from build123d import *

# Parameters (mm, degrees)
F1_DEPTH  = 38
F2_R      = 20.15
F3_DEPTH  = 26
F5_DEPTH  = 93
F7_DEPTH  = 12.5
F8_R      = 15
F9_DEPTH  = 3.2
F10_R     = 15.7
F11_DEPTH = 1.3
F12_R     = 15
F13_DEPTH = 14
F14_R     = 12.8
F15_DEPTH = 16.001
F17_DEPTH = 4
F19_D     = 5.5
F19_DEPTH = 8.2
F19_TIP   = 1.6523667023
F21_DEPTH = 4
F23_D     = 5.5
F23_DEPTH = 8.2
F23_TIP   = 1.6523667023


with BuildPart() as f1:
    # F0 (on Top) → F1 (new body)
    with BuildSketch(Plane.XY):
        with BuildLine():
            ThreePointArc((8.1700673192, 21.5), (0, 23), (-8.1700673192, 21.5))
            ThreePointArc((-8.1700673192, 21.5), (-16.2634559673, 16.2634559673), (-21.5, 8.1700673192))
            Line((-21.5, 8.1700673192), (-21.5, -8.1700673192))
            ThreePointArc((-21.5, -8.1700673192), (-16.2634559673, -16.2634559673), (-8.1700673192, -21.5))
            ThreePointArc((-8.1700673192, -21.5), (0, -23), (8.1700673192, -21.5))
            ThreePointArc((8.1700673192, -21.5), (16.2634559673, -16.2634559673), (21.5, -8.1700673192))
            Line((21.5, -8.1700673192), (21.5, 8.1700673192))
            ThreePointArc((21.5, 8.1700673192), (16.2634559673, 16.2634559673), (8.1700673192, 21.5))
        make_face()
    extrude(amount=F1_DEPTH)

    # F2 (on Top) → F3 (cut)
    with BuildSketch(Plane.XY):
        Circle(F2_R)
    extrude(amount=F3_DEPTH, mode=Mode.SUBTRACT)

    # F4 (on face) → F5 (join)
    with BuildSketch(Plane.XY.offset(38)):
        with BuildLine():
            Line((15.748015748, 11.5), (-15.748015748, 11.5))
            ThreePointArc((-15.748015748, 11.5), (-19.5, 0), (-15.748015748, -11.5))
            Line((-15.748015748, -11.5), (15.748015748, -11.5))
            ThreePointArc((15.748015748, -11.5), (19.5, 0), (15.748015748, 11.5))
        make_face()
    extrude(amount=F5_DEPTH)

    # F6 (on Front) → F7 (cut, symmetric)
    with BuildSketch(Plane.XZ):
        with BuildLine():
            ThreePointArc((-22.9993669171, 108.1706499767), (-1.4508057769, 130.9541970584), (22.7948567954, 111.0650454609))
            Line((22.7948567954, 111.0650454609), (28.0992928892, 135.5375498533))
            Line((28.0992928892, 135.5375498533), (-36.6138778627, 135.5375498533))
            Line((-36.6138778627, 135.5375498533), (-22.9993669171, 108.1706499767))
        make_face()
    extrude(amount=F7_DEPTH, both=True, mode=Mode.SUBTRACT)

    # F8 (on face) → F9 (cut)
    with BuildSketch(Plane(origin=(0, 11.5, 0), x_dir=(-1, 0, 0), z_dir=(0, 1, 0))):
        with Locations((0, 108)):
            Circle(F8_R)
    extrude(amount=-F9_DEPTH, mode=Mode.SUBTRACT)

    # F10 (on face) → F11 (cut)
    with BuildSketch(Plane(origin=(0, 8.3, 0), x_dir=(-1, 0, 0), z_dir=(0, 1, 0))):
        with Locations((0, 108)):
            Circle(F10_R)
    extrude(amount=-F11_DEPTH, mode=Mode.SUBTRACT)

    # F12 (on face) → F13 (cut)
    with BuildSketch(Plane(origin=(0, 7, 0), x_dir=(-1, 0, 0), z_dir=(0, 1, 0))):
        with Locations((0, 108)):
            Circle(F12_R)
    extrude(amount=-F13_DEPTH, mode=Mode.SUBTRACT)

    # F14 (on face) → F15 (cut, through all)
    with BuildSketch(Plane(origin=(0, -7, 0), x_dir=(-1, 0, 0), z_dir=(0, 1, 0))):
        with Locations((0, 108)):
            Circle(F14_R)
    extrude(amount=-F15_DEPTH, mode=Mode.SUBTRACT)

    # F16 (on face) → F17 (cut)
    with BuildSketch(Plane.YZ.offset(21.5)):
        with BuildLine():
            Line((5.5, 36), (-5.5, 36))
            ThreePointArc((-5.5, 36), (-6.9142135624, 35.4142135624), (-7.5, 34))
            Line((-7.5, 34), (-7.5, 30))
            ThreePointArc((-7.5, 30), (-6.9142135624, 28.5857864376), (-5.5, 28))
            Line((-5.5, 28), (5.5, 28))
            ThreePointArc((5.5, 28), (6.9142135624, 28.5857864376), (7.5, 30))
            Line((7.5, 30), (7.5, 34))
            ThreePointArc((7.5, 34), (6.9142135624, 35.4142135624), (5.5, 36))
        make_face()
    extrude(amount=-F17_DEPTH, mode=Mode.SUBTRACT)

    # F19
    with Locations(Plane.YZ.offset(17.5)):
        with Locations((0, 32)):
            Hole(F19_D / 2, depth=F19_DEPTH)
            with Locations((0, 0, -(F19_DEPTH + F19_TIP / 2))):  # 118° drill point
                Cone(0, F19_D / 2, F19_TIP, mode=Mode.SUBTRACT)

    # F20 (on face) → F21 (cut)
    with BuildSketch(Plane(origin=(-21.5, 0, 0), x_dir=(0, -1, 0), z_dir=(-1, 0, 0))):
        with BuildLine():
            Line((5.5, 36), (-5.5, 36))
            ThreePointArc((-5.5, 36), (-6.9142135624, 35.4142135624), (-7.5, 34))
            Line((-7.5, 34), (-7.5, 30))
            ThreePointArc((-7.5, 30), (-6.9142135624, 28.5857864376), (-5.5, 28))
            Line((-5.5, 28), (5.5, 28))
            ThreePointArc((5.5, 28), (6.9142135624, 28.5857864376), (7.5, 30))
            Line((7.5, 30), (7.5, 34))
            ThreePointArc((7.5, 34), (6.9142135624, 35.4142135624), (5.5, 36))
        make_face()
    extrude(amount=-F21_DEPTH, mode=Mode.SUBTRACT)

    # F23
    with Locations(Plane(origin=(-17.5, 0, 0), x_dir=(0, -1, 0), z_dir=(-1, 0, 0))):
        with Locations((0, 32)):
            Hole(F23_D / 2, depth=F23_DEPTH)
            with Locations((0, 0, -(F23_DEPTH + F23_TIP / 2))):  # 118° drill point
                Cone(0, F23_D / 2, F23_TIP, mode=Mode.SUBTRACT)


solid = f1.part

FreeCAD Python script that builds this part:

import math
import FreeCAD as App
import Part
import Sketcher
from FreeCAD import Vector
Q = App.Units.Quantity

doc = App.newDocument("Part")
body = doc.addObject("PartDesign::Body", "Body")

sketch1 = body.newObject("Sketcher::SketchObject", "Sketch")
sketch1.AttachmentSupport = (doc.getObject("XY_Plane"), [""])
sketch1.MapMode = "FlatFace"
sketch1.addGeometry(Part.LineSegment(Vector(-22, 8, 0), Vector(-22, -8, 0)), False)
sketch1.addGeometry(Part.ArcOfCircle(Part.Circle(Vector(0, 0, 0), Vector(0, 0, 1), 23), math.radians(-159), math.radians(-69)), False)
sketch1.addGeometry(Part.ArcOfCircle(Part.Circle(Vector(0, 0, 0), Vector(0, 0, 1), 23), math.radians(-69), math.radians(-21)), False)
sketch1.addGeometry(Part.LineSegment(Vector(22, -8, 0), Vector(22, 8, 0)), False)
sketch1.addGeometry(Part.ArcOfCircle(Part.Circle(Vector(0, 0, 0), Vector(0, 0, 1), 23), math.radians(21), math.radians(159)), False)
sketch1.addConstraint(Sketcher.Constraint("Coincident", 0, 2, 1, 1))
sketch1.addConstraint(Sketcher.Constraint("Tangent", 1, 2, 2, 1))
sketch1.addConstraint(Sketcher.Constraint("Coincident", 2, 2, 3, 1))
sketch1.addConstraint(Sketcher.Constraint("Coincident", 3, 2, 4, 1))
sketch1.addConstraint(Sketcher.Constraint("Coincident", 4, 2, 0, 1))
sketch1.addConstraint(Sketcher.Constraint("Vertical", 0))
sketch1.addConstraint(Sketcher.Constraint("Vertical", 3))
sketch1.addConstraint(Sketcher.Constraint("Coincident", 1, 3, -1, 1))
sketch1.addConstraint(Sketcher.Constraint("Coincident", 4, 3, -1, 1))
sketch1.addConstraint(Sketcher.Constraint("Equal", 1, 2))
sketch1.addConstraint(Sketcher.Constraint("Equal", 2, 4))
sketch1.addConstraint(Sketcher.Constraint("Horizontal", 0, 2, 2, 2))
sketch1.addConstraint(Sketcher.Constraint("Radius", 1, Q("23 mm")))
sketch1.addConstraint(Sketcher.Constraint("DistanceX", 0, 2, 2, 2, Q("43 mm")))
sketch1.addConstraint(Sketcher.Constraint("DistanceY", 1, 2, -1, 1, Q("21.5 mm")))
pad1 = body.newObject("PartDesign::Pad", "Pad")
pad1.Profile = sketch1
pad1.Length = 38

sketch2 = body.newObject("Sketcher::SketchObject", "Sketch001")
sketch2.AttachmentSupport = (doc.getObject("XY_Plane"), [""])
sketch2.MapMode = "FlatFace"
sketch2.addGeometry(Part.Circle(Vector(0, 0, 0), Vector(0, 0, 1), 20), False)
sketch2.addConstraint(Sketcher.Constraint("Coincident", 0, 3, -1, 1))
sketch2.addConstraint(Sketcher.Constraint("Diameter", 0, Q("40.3 mm")))
pocket1 = body.newObject("PartDesign::Pocket", "Pocket")
pocket1.Profile = sketch2
pocket1.Length = 26
pocket1.Reversed = True

sketch3 = body.newObject("Sketcher::SketchObject", "Sketch002")
sketch3.AttachmentSupport = (doc.getObject("XY_Plane"), [""])
sketch3.MapMode = "FlatFace"
sketch3.AttachmentOffset = App.Placement(Vector(0, 0, 38), App.Rotation())
sketch3.addGeometry(Part.LineSegment(Vector(16, 12, 0), Vector(-16, 12, 0)), False)
sketch3.addGeometry(Part.ArcOfCircle(Part.Circle(Vector(0, 0, 0), Vector(0, 0, 1), 20), math.radians(144), math.radians(216)), False)
sketch3.addGeometry(Part.LineSegment(Vector(-16, -12, 0), Vector(16, -12, 0)), False)
sketch3.addGeometry(Part.ArcOfCircle(Part.Circle(Vector(0, 0, 0), Vector(0, 0, 1), 20), math.radians(-36), math.radians(36)), False)
sketch3.addConstraint(Sketcher.Constraint("Coincident", 0, 2, 1, 1))
sketch3.addConstraint(Sketcher.Constraint("Coincident", 1, 2, 2, 1))
sketch3.addConstraint(Sketcher.Constraint("Coincident", 2, 2, 3, 1))
sketch3.addConstraint(Sketcher.Constraint("Coincident", 3, 2, 0, 1))
sketch3.addConstraint(Sketcher.Constraint("Horizontal", 0))
sketch3.addConstraint(Sketcher.Constraint("Horizontal", 2))
sketch3.addConstraint(Sketcher.Constraint("Coincident", 1, 3, -1, 1))
sketch3.addConstraint(Sketcher.Constraint("Coincident", 3, 3, -1, 1))
sketch3.addConstraint(Sketcher.Constraint("Equal", 1, 3))
sketch3.addConstraint(Sketcher.Constraint("Vertical", 0, 2, 1, 2))
sketch3.addConstraint(Sketcher.Constraint("Radius", 1, Q("19.5 mm")))
sketch3.addConstraint(Sketcher.Constraint("DistanceY", 1, 2, 0, 2, Q("23 mm")))
pad2 = body.newObject("PartDesign::Pad", "Pad001")
pad2.Profile = sketch3
pad2.Length = 93

sketch4 = body.newObject("Sketcher::SketchObject", "Sketch003")
sketch4.AttachmentSupport = (doc.getObject("XZ_Plane"), [""])
sketch4.MapMode = "FlatFace"
sketch4.addGeometry(Part.ArcOfCircle(Part.Circle(Vector(0, 108, 0), Vector(0, 0, 1), 23), math.radians(8), math.radians(180)), False)
sketch4.addGeometry(Part.LineSegment(Vector(23, 111, 0), Vector(28, 136, 0)), False)
sketch4.addGeometry(Part.LineSegment(Vector(28, 136, 0), Vector(-37, 136, 0)), False)
sketch4.addGeometry(Part.LineSegment(Vector(-37, 136, 0), Vector(-23, 108, 0)), False)
sketch4.addConstraint(Sketcher.Constraint("Coincident", 0, 1, 1, 1))
sketch4.addConstraint(Sketcher.Constraint("Coincident", 1, 2, 2, 1))
sketch4.addConstraint(Sketcher.Constraint("Coincident", 2, 2, 3, 1))
sketch4.addConstraint(Sketcher.Constraint("Coincident", 3, 2, 0, 2))
sketch4.addConstraint(Sketcher.Constraint("Horizontal", 2))
sketch4.addConstraint(Sketcher.Constraint("PointOnObject", 0, 3, -2))
sketch4.addConstraint(Sketcher.Constraint("Radius", 0, Q("23 mm")))
sketch4.addConstraint(Sketcher.Constraint("DistanceY", -1, 1, 0, 3, Q("108 mm")))
sketch4.addConstraint(Sketcher.Constraint("DistanceX", 2, 2, 2, 1, Q("64.713171 mm")))
sketch4.addConstraint(Sketcher.Constraint("DistanceY", 3, 2, 2, 2, Q("27.3669 mm")))
sketch4.addConstraint(Sketcher.Constraint("DistanceY", -1, 1, 1, 2, Q("135.53755 mm")))
sketch4.addConstraint(Sketcher.Constraint("DistanceX", 2, 2, 3, 2, Q("13.614511 mm")))
sketch4.addConstraint(Sketcher.Constraint("Distance", 1, Q("25.040777 mm")))
pocket2 = body.newObject("PartDesign::Pocket", "Pocket001")
pocket2.Profile = sketch4
pocket2.Length = 25
pocket2.Midplane = True

sketch5 = body.newObject("Sketcher::SketchObject", "Sketch004")
sketch5.AttachmentSupport = (doc.getObject("XZ_Plane"), [""])
sketch5.MapMode = "FlatFace"
sketch5.AttachmentOffset = App.Placement(Vector(0, 0, -11.5), App.Rotation())
sketch5.addGeometry(Part.Circle(Vector(0, 108, 0), Vector(0, 0, 1), 15), False)
sketch5.addConstraint(Sketcher.Constraint("PointOnObject", 0, 3, -2))
sketch5.addConstraint(Sketcher.Constraint("Diameter", 0, Q("30 mm")))
sketch5.addConstraint(Sketcher.Constraint("DistanceY", -1, 1, 0, 3, Q("108 mm")))
pocket3 = body.newObject("PartDesign::Pocket", "Pocket002")
pocket3.Profile = sketch5
pocket3.Length = 3.2
pocket3.Reversed = True

sketch6 = body.newObject("Sketcher::SketchObject", "Sketch005")
sketch6.AttachmentSupport = (doc.getObject("XZ_Plane"), [""])
sketch6.MapMode = "FlatFace"
sketch6.AttachmentOffset = App.Placement(Vector(0, 0, -8.3), App.Rotation())
sketch6.addGeometry(Part.Circle(Vector(0, 108, 0), Vector(0, 0, 1), 16), False)
sketch6.addConstraint(Sketcher.Constraint("PointOnObject", 0, 3, -2))
sketch6.addConstraint(Sketcher.Constraint("Diameter", 0, Q("31.4 mm")))
sketch6.addConstraint(Sketcher.Constraint("DistanceY", -1, 1, 0, 3, Q("108 mm")))
pocket4 = body.newObject("PartDesign::Pocket", "Pocket003")
pocket4.Profile = sketch6
pocket4.Length = 1.3
pocket4.Reversed = True

sketch7 = body.newObject("Sketcher::SketchObject", "Sketch006")
sketch7.AttachmentSupport = (doc.getObject("XZ_Plane"), [""])
sketch7.MapMode = "FlatFace"
sketch7.AttachmentOffset = App.Placement(Vector(0, 0, -7), App.Rotation())
sketch7.addGeometry(Part.Circle(Vector(0, 108, 0), Vector(0, 0, 1), 15), False)
sketch7.addConstraint(Sketcher.Constraint("PointOnObject", 0, 3, -2))
sketch7.addConstraint(Sketcher.Constraint("Diameter", 0, Q("30 mm")))
sketch7.addConstraint(Sketcher.Constraint("DistanceY", -1, 1, 0, 3, Q("108 mm")))
pocket5 = body.newObject("PartDesign::Pocket", "Pocket004")
pocket5.Profile = sketch7
pocket5.Length = 14
pocket5.Reversed = True

sketch8 = body.newObject("Sketcher::SketchObject", "Sketch007")
sketch8.AttachmentSupport = (doc.getObject("XZ_Plane"), [""])
sketch8.MapMode = "FlatFace"
sketch8.AttachmentOffset = App.Placement(Vector(0, 0, 7), App.Rotation())
sketch8.addGeometry(Part.Circle(Vector(0, 108, 0), Vector(0, 0, 1), 13), False)
sketch8.addConstraint(Sketcher.Constraint("PointOnObject", 0, 3, -2))
sketch8.addConstraint(Sketcher.Constraint("Diameter", 0, Q("25.6 mm")))
sketch8.addConstraint(Sketcher.Constraint("DistanceY", -1, 1, 0, 3, Q("108 mm")))
pocket6 = body.newObject("PartDesign::Pocket", "Pocket005")
pocket6.Profile = sketch8
pocket6.Type = "ThroughAll"
pocket6.Reversed = True

sketch9 = body.newObject("Sketcher::SketchObject", "Sketch008")
sketch9.AttachmentSupport = (doc.getObject("YZ_Plane"), [""])
sketch9.MapMode = "FlatFace"
sketch9.AttachmentOffset = App.Placement(Vector(0, 0, 21.5), App.Rotation())
sketch9.addGeometry(Part.LineSegment(Vector(5.5, 36, 0), Vector(-5.5, 36, 0)), False)
sketch9.addGeometry(Part.ArcOfCircle(Part.Circle(Vector(-5.5, 34, 0), Vector(0, 0, 1), 2), math.radians(90), math.radians(180)), False)
sketch9.addGeometry(Part.LineSegment(Vector(-7.5, 34, 0), Vector(-7.5, 30, 0)), False)
sketch9.addGeometry(Part.ArcOfCircle(Part.Circle(Vector(-5.5, 30, 0), Vector(0, 0, 1), 2), math.radians(180), math.radians(270)), False)
sketch9.addGeometry(Part.LineSegment(Vector(-5.5, 28, 0), Vector(5.5, 28, 0)), False)
sketch9.addGeometry(Part.ArcOfCircle(Part.Circle(Vector(5.5, 30, 0), Vector(0, 0, 1), 2), math.radians(-90), math.radians(0)), False)
sketch9.addGeometry(Part.LineSegment(Vector(7.5, 30, 0), Vector(7.5, 34, 0)), False)
sketch9.addGeometry(Part.ArcOfCircle(Part.Circle(Vector(5.5, 34, 0), Vector(0, 0, 1), 2), math.radians(0), math.radians(90)), False)
sketch9.addConstraint(Sketcher.Constraint("Tangent", 0, 2, 1, 1))
sketch9.addConstraint(Sketcher.Constraint("Tangent", 1, 2, 2, 1))
sketch9.addConstraint(Sketcher.Constraint("Tangent", 2, 2, 3, 1))
sketch9.addConstraint(Sketcher.Constraint("Tangent", 3, 2, 4, 1))
sketch9.addConstraint(Sketcher.Constraint("Tangent", 4, 2, 5, 1))
sketch9.addConstraint(Sketcher.Constraint("Tangent", 5, 2, 6, 1))
sketch9.addConstraint(Sketcher.Constraint("Tangent", 6, 2, 7, 1))
sketch9.addConstraint(Sketcher.Constraint("Tangent", 7, 2, 0, 1))
sketch9.addConstraint(Sketcher.Constraint("Horizontal", 0))
sketch9.addConstraint(Sketcher.Constraint("Vertical", 2))
sketch9.addConstraint(Sketcher.Constraint("Horizontal", 4))
sketch9.addConstraint(Sketcher.Constraint("Vertical", 6))
sketch9.addConstraint(Sketcher.Constraint("Equal", 1, 3))
sketch9.addConstraint(Sketcher.Constraint("Equal", 3, 5))
sketch9.addConstraint(Sketcher.Constraint("Equal", 5, 7))
sketch9.addConstraint(Sketcher.Constraint("Radius", 1, Q("2 mm")))
sketch9.addConstraint(Sketcher.Constraint("DistanceX", 0, 2, 0, 1, Q("11 mm")))
sketch9.addConstraint(Sketcher.Constraint("DistanceY", 2, 2, 2, 1, Q("4 mm")))
sketch9.addConstraint(Sketcher.Constraint("DistanceY", -1, 1, 1, 3, Q("34 mm")))
sketch9.addConstraint(Sketcher.Constraint("DistanceX", 1, 3, -1, 1, Q("5.5 mm")))
pocket7 = body.newObject("PartDesign::Pocket", "Pocket006")
pocket7.Profile = sketch9
pocket7.Length = 4

sketch10 = body.newObject("Sketcher::SketchObject", "Sketch009")
sketch10.AttachmentSupport = (doc.getObject("YZ_Plane"), [""])
sketch10.MapMode = "FlatFace"
sketch10.AttachmentOffset = App.Placement(Vector(0, 0, 17.5), App.Rotation())
sketch10.addGeometry(Part.Circle(Vector(0, 32, 0), Vector(0, 0, 1), 2.8), False)
sketch10.addConstraint(Sketcher.Constraint("PointOnObject", 0, 3, -2))
sketch10.addConstraint(Sketcher.Constraint("Diameter", 0, Q("5.5 mm")))
sketch10.addConstraint(Sketcher.Constraint("DistanceY", -1, 1, 0, 3, Q("32 mm")))
doc.recompute()
hole = body.newObject("PartDesign::Hole", "Hole")
hole.Profile = sketch10
hole.ThreadType = "None"
hole.Diameter = 5.5
hole.DepthType = "Dimension"
hole.Depth = 8.2
hole.DrillPoint = "Angled"
hole.DrillPointAngle = 118

sketch11 = body.newObject("Sketcher::SketchObject", "Sketch010")
sketch11.AttachmentSupport = (doc.getObject("YZ_Plane"), [""])
sketch11.MapMode = "FlatFace"
sketch11.AttachmentOffset = App.Placement(Vector(0, 0, -21.5), App.Rotation())
sketch11.addGeometry(Part.LineSegment(Vector(-5.5, 36, 0), Vector(5.5, 36, 0)), False)
sketch11.addGeometry(Part.ArcOfCircle(Part.Circle(Vector(5.5, 34, 0), Vector(0, 0, 1), 2), math.radians(0), math.radians(90)), False)
sketch11.addGeometry(Part.LineSegment(Vector(7.5, 34, 0), Vector(7.5, 30, 0)), False)
sketch11.addGeometry(Part.ArcOfCircle(Part.Circle(Vector(5.5, 30, 0), Vector(0, 0, 1), 2), math.radians(-90), math.radians(0)), False)
sketch11.addGeometry(Part.LineSegment(Vector(5.5, 28, 0), Vector(-5.5, 28, 0)), False)
sketch11.addGeometry(Part.ArcOfCircle(Part.Circle(Vector(-5.5, 30, 0), Vector(0, 0, 1), 2), math.radians(180), math.radians(270)), False)
sketch11.addGeometry(Part.LineSegment(Vector(-7.5, 30, 0), Vector(-7.5, 34, 0)), False)
sketch11.addGeometry(Part.ArcOfCircle(Part.Circle(Vector(-5.5, 34, 0), Vector(0, 0, 1), 2), math.radians(90), math.radians(180)), False)
sketch11.addConstraint(Sketcher.Constraint("Tangent", 0, 2, 1, 2))
sketch11.addConstraint(Sketcher.Constraint("Tangent", 1, 1, 2, 1))
sketch11.addConstraint(Sketcher.Constraint("Tangent", 2, 2, 3, 2))
sketch11.addConstraint(Sketcher.Constraint("Tangent", 3, 1, 4, 1))
sketch11.addConstraint(Sketcher.Constraint("Tangent", 4, 2, 5, 2))
sketch11.addConstraint(Sketcher.Constraint("Tangent", 5, 1, 6, 1))
sketch11.addConstraint(Sketcher.Constraint("Tangent", 6, 2, 7, 2))
sketch11.addConstraint(Sketcher.Constraint("Tangent", 7, 1, 0, 1))
sketch11.addConstraint(Sketcher.Constraint("Horizontal", 0))
sketch11.addConstraint(Sketcher.Constraint("Vertical", 2))
sketch11.addConstraint(Sketcher.Constraint("Horizontal", 4))
sketch11.addConstraint(Sketcher.Constraint("Vertical", 6))
sketch11.addConstraint(Sketcher.Constraint("Equal", 1, 3))
sketch11.addConstraint(Sketcher.Constraint("Equal", 3, 5))
sketch11.addConstraint(Sketcher.Constraint("Equal", 5, 7))
sketch11.addConstraint(Sketcher.Constraint("Radius", 1, Q("2 mm")))
sketch11.addConstraint(Sketcher.Constraint("DistanceX", 0, 1, 0, 2, Q("11 mm")))
sketch11.addConstraint(Sketcher.Constraint("DistanceY", 2, 2, 2, 1, Q("4 mm")))
sketch11.addConstraint(Sketcher.Constraint("DistanceY", -1, 1, 1, 3, Q("34 mm")))
sketch11.addConstraint(Sketcher.Constraint("DistanceX", -1, 1, 1, 3, Q("5.5 mm")))
pocket8 = body.newObject("PartDesign::Pocket", "Pocket007")
pocket8.Profile = sketch11
pocket8.Length = 4
pocket8.Reversed = True

sketch12 = body.newObject("Sketcher::SketchObject", "Sketch011")
sketch12.AttachmentSupport = (doc.getObject("YZ_Plane"), [""])
sketch12.MapMode = "FlatFace"
sketch12.AttachmentOffset = App.Placement(Vector(0, 0, -17.5), App.Rotation())
sketch12.addGeometry(Part.Circle(Vector(0, 32, 0), Vector(0, 0, 1), 2.8), False)
sketch12.addConstraint(Sketcher.Constraint("PointOnObject", 0, 3, -2))
sketch12.addConstraint(Sketcher.Constraint("Diameter", 0, Q("5.5 mm")))
sketch12.addConstraint(Sketcher.Constraint("DistanceY", -1, 1, 0, 3, Q("32 mm")))
doc.recompute()
hole2 = body.newObject("PartDesign::Hole", "Hole001")
hole2.Profile = sketch12
hole2.ThreadType = "None"
hole2.Diameter = 5.5
hole2.DepthType = "Dimension"
hole2.Depth = 8.2
hole2.DrillPoint = "Angled"
hole2.DrillPointAngle = 118
hole2.Reversed = True

doc.recompute()
